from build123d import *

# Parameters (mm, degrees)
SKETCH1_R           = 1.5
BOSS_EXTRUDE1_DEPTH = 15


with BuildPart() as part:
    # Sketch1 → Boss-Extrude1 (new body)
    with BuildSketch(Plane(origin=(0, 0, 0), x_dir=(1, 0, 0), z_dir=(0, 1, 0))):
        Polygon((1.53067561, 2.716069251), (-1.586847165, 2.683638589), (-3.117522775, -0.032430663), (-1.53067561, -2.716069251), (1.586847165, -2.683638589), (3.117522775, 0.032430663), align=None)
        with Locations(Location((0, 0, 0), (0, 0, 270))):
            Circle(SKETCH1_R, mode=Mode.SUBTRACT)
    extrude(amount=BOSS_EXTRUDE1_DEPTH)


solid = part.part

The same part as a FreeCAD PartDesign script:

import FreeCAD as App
import Part
import Sketcher
Q = App.Units.Quantity

doc = App.newDocument("Part")
params = doc.addObject("Spreadsheet::Sheet", "Params")
for row, (alias, value) in enumerate([
    ("sketch1_diameter", "3 mm"),
    ("pad1_length", "15 mm"),
], start=1):
    params.set(f"A{row}", alias)
    params.set(f"B{row}", "=" + value)
    params.setAlias(f"B{row}", alias)

body = doc.addObject("PartDesign::Body", "Body")

sketch1 = body.newObject("Sketcher::SketchObject", "Sketch")
sketch1.AttachmentSupport = (doc.getObject("XZ_Plane"), [""])
sketch1.MapMode = "FlatFace"
sketch1.addGeometry([
    Part.LineSegment(App.Vector(1.530676, -2.716069, 0), App.Vector(-1.586847, -2.683639, 0)),
    Part.LineSegment(App.Vector(-1.586847, -2.683639, 0), App.Vector(-3.117523, 0.032431, 0)),
    Part.LineSegment(App.Vector(-3.117523, 0.032431, 0), App.Vector(-1.530676, 2.716069, 0)),
    Part.LineSegment(App.Vector(-1.530676, 2.716069, 0), App.Vector(1.586847, 2.683639, 0)),
    Part.LineSegment(App.Vector(1.586847, 2.683639, 0), App.Vector(3.117523, -0.032431, 0)),
    Part.LineSegment(App.Vector(3.117523, -0.032431, 0), App.Vector(1.530676, -2.716069, 0)),
    Part.Circle(App.Vector(0, 0, 0), App.Vector(0, 0, 1), 1.5),
], False)
sketch1.addConstraint([
    Sketcher.Constraint("Coincident", 0, 2, 1, 1),
    Sketcher.Constraint("Coincident", 1, 2, 2, 1),
    Sketcher.Constraint("Coincident", 2, 2, 3, 1),
    Sketcher.Constraint("Coincident", 3, 2, 4, 1),
    Sketcher.Constraint("Coincident", 4, 2, 5, 1),
    Sketcher.Constraint("Coincident", 5, 2, 0, 1),
    Sketcher.Constraint("Coincident", 6, 3, -1, 1),
    Sketcher.Constraint("Symmetric", 0, 2, 3, 2, -1, 1),
    Sketcher.Constraint("Symmetric", 1, 2, 4, 2, -1, 1),
    Sketcher.Constraint("Symmetric", 2, 2, 5, 2, -1, 1),
    Sketcher.Constraint("Equal", 0, 1),
    Sketcher.Constraint("Equal", 1, 2),
    Sketcher.Constraint("Diameter", 6, Q("3 mm")),
    Sketcher.Constraint("DistanceX", 2, 2, 4, 2, Q("4.648198 mm")),
    Sketcher.Constraint("DistanceY", 4, 2, 2, 2, Q("2.7485 mm")),
    Sketcher.Constraint("Distance", 0, Q("3.117691 mm")),
    Sketcher.Constraint("DistanceY", 0, 2, -1, 1, Q("2.683639 mm")),
])
sketch1.setExpression("Constraints[12]", "Params.sketch1_diameter")
pad1 = body.newObject("PartDesign::Pad", "Pad")
pad1.Profile = sketch1
pad1.setExpression("Length", "Params.pad1_length")
pad1.Reversed = True

doc.recompute()
